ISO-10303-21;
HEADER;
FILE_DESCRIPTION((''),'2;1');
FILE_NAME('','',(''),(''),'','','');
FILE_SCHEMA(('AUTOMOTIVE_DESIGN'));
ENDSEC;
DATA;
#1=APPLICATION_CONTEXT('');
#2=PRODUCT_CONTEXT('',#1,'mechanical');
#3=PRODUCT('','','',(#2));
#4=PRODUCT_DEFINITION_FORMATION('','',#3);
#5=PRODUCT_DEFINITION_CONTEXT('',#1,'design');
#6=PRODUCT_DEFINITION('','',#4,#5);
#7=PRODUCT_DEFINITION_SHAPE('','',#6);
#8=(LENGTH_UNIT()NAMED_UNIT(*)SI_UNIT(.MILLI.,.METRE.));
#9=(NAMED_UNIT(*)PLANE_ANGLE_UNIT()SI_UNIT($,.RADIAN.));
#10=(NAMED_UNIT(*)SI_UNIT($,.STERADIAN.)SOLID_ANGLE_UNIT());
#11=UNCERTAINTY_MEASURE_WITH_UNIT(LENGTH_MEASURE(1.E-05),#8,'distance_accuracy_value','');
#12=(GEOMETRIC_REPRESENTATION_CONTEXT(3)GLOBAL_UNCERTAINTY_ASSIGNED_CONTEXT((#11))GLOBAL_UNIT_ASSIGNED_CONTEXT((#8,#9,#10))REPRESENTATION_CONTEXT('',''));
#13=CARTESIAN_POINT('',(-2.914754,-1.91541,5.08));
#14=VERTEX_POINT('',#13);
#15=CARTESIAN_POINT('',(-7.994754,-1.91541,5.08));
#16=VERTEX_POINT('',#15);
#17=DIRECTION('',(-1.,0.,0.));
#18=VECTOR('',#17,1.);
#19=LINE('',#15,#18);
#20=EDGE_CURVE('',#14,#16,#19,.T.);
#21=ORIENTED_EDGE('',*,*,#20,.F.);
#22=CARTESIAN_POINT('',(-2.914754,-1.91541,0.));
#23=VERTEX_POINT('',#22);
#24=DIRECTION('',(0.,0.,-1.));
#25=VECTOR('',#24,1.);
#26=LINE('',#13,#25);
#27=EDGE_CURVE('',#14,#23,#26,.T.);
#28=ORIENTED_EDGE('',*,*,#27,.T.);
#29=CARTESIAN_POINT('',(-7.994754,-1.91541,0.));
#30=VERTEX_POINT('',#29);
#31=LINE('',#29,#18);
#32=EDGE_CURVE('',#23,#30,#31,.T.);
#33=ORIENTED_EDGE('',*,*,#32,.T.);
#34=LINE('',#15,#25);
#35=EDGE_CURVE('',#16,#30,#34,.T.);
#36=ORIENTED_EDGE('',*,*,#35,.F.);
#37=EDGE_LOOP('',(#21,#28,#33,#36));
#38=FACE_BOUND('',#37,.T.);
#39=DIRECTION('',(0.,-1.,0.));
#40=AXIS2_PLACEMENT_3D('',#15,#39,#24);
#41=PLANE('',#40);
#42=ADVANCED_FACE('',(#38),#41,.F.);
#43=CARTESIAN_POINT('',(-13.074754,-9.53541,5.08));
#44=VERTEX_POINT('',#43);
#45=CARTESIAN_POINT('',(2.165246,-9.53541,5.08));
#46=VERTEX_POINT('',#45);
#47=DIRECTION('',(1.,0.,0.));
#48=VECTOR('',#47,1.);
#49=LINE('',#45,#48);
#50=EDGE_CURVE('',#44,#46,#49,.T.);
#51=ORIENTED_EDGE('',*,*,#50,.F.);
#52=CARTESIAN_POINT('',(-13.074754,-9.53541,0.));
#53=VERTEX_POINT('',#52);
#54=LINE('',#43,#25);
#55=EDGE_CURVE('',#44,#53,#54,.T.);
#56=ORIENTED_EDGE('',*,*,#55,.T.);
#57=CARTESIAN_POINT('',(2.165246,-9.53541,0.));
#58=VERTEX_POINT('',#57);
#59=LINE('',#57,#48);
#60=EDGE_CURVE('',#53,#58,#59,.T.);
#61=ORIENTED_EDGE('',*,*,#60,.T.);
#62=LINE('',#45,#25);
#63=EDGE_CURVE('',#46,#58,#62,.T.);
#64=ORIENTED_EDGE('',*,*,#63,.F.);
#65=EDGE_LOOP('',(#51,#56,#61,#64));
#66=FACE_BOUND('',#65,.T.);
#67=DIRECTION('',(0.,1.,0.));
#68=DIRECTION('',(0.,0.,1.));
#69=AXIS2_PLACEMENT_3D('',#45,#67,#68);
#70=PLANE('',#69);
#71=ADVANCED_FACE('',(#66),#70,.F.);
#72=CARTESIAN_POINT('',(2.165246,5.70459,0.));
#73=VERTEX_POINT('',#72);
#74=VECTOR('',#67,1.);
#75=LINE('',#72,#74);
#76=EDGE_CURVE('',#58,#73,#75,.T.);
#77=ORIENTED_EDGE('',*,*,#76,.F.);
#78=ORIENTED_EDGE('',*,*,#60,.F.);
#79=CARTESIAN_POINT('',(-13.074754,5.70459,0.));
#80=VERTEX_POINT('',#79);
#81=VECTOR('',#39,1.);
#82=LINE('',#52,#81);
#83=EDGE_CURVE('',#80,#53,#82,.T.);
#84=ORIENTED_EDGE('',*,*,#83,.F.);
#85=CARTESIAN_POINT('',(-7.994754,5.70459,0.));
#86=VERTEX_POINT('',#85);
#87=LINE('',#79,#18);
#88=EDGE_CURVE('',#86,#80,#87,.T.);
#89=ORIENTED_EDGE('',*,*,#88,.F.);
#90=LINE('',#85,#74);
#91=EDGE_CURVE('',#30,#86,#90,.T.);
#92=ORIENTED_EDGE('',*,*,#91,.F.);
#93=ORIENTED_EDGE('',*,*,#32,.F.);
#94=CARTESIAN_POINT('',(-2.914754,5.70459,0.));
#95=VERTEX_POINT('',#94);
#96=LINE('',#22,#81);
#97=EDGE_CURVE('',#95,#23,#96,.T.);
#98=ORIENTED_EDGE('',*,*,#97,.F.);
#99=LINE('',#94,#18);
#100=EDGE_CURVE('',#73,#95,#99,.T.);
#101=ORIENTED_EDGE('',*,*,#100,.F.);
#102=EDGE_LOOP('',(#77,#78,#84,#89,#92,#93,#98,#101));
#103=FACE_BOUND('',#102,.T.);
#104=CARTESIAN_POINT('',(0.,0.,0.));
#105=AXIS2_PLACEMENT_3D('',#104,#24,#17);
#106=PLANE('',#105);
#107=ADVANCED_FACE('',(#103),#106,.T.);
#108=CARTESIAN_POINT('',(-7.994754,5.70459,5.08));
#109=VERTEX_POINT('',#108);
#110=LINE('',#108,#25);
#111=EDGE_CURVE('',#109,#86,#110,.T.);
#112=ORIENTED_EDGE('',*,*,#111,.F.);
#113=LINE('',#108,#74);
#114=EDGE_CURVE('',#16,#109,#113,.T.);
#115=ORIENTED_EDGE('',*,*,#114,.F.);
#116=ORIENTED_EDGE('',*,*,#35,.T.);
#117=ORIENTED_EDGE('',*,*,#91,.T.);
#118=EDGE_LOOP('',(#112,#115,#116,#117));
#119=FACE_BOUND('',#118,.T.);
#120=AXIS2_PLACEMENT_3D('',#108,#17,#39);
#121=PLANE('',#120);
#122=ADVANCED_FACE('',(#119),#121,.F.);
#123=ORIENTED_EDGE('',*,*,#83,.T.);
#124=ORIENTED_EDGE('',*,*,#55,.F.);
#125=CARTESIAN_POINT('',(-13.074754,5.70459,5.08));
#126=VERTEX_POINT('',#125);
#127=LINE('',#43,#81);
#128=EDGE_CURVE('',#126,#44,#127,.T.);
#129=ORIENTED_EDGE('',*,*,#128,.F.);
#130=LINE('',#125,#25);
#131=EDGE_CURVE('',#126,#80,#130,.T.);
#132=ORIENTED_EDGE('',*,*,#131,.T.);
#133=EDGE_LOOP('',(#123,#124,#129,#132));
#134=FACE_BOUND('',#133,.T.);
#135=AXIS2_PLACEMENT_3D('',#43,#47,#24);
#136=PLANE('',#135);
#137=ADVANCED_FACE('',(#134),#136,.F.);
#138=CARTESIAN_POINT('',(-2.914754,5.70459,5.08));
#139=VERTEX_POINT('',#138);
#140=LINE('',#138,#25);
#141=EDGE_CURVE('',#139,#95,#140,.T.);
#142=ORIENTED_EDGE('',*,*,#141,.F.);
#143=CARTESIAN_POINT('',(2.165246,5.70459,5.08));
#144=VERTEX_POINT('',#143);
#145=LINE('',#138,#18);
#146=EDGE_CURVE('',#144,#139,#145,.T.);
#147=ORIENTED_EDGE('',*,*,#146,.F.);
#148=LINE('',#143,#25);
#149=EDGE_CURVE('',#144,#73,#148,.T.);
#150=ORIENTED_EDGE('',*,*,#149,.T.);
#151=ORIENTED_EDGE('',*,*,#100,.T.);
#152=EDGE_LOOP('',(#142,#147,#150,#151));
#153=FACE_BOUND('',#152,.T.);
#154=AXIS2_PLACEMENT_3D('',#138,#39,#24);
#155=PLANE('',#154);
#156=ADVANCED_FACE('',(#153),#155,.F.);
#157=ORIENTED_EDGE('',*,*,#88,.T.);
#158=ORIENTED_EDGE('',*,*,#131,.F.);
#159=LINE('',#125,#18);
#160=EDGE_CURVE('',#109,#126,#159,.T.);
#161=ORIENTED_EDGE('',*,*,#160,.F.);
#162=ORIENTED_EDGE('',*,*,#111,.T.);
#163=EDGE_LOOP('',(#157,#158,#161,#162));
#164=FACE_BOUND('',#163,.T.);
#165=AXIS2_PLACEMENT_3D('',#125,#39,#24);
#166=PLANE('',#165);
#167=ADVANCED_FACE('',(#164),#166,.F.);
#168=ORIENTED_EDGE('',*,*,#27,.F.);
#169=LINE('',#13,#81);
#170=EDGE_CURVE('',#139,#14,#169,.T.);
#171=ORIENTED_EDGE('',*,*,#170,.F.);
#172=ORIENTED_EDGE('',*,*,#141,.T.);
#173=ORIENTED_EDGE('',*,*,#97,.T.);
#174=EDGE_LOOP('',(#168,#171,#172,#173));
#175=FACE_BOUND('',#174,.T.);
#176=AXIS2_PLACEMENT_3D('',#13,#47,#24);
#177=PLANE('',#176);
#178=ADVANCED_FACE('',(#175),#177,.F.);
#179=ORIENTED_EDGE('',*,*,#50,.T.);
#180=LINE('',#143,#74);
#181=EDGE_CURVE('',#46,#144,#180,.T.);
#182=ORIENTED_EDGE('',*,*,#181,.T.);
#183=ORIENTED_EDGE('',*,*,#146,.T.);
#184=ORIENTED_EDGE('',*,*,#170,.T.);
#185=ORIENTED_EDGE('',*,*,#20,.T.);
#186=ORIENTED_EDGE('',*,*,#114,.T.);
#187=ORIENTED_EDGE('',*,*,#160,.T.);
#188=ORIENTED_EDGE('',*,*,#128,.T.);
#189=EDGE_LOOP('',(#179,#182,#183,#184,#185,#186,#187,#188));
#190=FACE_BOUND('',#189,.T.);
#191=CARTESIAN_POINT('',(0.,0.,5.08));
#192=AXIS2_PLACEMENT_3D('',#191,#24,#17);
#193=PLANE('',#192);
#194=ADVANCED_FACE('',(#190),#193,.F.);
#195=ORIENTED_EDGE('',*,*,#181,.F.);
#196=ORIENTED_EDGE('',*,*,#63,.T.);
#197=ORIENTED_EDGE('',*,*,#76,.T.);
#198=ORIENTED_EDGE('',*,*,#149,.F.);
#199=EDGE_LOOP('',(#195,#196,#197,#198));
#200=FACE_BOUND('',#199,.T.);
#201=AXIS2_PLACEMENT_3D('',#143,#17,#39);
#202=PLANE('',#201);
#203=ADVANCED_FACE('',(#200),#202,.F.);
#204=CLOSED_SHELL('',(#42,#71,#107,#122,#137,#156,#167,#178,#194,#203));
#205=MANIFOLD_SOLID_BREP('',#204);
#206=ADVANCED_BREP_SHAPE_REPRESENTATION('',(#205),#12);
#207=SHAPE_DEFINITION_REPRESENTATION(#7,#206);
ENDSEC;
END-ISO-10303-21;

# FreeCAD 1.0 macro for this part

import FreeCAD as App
import Part
import Sketcher

V = App.Vector
Q = App.Units.Quantity


def add_polygon(sketch, points):
    """Adds a closed chain of lines whose ends are joined by coincident constraints."""
    first, n = sketch.GeometryCount, len(points)
    for a, b in zip(points, points[1:] + points[:1]):
        sketch.addGeometry(Part.LineSegment(App.Vector(*a, 0), App.Vector(*b, 0)), False)
    for i in range(n):
        sketch.addConstraint(Sketcher.Constraint("Coincident", first + i, 2, first + (i + 1) % n, 1))

doc = App.newDocument("Part")
body = doc.addObject("PartDesign::Body", "Body")

# Sketch on XY plane
sketch1 = body.newObject("Sketcher::SketchObject", "Sketch")
sketch1.AttachmentSupport = (doc.getObject("XY_Plane"), [""])
sketch1.MapMode = "FlatFace"
add_polygon(sketch1, [(-7.994754, 5.70459), (-13.074754, 5.70459), (-13.074754, -9.53541), (2.165246, -9.53541), (2.165246, 5.70459), (-2.914754, 5.70459), (-2.914754, -1.91541), (-7.994754, -1.91541)])  # lines 0-7
sketch1.addConstraint(Sketcher.Constraint("Horizontal", 0))
sketch1.addConstraint(Sketcher.Constraint("Vertical", 1))
sketch1.addConstraint(Sketcher.Constraint("Horizontal", 2))
sketch1.addConstraint(Sketcher.Constraint("Vertical", 3))
sketch1.addConstraint(Sketcher.Constraint("Horizontal", 4))
sketch1.addConstraint(Sketcher.Constraint("Vertical", 5))
sketch1.addConstraint(Sketcher.Constraint("Horizontal", 6))
sketch1.addConstraint(Sketcher.Constraint("Vertical", 7))
sketch1.addConstraint(Sketcher.Constraint("Horizontal", 0, 2, 3, 2))
sketch1.addConstraint(Sketcher.Constraint("Equal", 0, 4))
sketch1.addConstraint(Sketcher.Constraint("Equal", 4, 6))
sketch1.addConstraint(Sketcher.Constraint("Equal", 2, 1))
sketch1.addConstraint(Sketcher.Constraint("DistanceX", 0, 2, 0, 1, Q("0.2 in")))
sketch1.addConstraint(Sketcher.Constraint("DistanceY", 5, 2, 5, 1, Q("0.3 in")))
sketch1.addConstraint(Sketcher.Constraint("DistanceY", -1, 1, 0, 2, Q("5.70459 mm")))
sketch1.addConstraint(Sketcher.Constraint("DistanceX", 0, 2, -1, 1, Q("13.074754 mm")))
pad1 = body.newObject("PartDesign::Pad", "Pad")
pad1.Profile = sketch1
pad1.Length = Q("0.2 in")

doc.recompute()
